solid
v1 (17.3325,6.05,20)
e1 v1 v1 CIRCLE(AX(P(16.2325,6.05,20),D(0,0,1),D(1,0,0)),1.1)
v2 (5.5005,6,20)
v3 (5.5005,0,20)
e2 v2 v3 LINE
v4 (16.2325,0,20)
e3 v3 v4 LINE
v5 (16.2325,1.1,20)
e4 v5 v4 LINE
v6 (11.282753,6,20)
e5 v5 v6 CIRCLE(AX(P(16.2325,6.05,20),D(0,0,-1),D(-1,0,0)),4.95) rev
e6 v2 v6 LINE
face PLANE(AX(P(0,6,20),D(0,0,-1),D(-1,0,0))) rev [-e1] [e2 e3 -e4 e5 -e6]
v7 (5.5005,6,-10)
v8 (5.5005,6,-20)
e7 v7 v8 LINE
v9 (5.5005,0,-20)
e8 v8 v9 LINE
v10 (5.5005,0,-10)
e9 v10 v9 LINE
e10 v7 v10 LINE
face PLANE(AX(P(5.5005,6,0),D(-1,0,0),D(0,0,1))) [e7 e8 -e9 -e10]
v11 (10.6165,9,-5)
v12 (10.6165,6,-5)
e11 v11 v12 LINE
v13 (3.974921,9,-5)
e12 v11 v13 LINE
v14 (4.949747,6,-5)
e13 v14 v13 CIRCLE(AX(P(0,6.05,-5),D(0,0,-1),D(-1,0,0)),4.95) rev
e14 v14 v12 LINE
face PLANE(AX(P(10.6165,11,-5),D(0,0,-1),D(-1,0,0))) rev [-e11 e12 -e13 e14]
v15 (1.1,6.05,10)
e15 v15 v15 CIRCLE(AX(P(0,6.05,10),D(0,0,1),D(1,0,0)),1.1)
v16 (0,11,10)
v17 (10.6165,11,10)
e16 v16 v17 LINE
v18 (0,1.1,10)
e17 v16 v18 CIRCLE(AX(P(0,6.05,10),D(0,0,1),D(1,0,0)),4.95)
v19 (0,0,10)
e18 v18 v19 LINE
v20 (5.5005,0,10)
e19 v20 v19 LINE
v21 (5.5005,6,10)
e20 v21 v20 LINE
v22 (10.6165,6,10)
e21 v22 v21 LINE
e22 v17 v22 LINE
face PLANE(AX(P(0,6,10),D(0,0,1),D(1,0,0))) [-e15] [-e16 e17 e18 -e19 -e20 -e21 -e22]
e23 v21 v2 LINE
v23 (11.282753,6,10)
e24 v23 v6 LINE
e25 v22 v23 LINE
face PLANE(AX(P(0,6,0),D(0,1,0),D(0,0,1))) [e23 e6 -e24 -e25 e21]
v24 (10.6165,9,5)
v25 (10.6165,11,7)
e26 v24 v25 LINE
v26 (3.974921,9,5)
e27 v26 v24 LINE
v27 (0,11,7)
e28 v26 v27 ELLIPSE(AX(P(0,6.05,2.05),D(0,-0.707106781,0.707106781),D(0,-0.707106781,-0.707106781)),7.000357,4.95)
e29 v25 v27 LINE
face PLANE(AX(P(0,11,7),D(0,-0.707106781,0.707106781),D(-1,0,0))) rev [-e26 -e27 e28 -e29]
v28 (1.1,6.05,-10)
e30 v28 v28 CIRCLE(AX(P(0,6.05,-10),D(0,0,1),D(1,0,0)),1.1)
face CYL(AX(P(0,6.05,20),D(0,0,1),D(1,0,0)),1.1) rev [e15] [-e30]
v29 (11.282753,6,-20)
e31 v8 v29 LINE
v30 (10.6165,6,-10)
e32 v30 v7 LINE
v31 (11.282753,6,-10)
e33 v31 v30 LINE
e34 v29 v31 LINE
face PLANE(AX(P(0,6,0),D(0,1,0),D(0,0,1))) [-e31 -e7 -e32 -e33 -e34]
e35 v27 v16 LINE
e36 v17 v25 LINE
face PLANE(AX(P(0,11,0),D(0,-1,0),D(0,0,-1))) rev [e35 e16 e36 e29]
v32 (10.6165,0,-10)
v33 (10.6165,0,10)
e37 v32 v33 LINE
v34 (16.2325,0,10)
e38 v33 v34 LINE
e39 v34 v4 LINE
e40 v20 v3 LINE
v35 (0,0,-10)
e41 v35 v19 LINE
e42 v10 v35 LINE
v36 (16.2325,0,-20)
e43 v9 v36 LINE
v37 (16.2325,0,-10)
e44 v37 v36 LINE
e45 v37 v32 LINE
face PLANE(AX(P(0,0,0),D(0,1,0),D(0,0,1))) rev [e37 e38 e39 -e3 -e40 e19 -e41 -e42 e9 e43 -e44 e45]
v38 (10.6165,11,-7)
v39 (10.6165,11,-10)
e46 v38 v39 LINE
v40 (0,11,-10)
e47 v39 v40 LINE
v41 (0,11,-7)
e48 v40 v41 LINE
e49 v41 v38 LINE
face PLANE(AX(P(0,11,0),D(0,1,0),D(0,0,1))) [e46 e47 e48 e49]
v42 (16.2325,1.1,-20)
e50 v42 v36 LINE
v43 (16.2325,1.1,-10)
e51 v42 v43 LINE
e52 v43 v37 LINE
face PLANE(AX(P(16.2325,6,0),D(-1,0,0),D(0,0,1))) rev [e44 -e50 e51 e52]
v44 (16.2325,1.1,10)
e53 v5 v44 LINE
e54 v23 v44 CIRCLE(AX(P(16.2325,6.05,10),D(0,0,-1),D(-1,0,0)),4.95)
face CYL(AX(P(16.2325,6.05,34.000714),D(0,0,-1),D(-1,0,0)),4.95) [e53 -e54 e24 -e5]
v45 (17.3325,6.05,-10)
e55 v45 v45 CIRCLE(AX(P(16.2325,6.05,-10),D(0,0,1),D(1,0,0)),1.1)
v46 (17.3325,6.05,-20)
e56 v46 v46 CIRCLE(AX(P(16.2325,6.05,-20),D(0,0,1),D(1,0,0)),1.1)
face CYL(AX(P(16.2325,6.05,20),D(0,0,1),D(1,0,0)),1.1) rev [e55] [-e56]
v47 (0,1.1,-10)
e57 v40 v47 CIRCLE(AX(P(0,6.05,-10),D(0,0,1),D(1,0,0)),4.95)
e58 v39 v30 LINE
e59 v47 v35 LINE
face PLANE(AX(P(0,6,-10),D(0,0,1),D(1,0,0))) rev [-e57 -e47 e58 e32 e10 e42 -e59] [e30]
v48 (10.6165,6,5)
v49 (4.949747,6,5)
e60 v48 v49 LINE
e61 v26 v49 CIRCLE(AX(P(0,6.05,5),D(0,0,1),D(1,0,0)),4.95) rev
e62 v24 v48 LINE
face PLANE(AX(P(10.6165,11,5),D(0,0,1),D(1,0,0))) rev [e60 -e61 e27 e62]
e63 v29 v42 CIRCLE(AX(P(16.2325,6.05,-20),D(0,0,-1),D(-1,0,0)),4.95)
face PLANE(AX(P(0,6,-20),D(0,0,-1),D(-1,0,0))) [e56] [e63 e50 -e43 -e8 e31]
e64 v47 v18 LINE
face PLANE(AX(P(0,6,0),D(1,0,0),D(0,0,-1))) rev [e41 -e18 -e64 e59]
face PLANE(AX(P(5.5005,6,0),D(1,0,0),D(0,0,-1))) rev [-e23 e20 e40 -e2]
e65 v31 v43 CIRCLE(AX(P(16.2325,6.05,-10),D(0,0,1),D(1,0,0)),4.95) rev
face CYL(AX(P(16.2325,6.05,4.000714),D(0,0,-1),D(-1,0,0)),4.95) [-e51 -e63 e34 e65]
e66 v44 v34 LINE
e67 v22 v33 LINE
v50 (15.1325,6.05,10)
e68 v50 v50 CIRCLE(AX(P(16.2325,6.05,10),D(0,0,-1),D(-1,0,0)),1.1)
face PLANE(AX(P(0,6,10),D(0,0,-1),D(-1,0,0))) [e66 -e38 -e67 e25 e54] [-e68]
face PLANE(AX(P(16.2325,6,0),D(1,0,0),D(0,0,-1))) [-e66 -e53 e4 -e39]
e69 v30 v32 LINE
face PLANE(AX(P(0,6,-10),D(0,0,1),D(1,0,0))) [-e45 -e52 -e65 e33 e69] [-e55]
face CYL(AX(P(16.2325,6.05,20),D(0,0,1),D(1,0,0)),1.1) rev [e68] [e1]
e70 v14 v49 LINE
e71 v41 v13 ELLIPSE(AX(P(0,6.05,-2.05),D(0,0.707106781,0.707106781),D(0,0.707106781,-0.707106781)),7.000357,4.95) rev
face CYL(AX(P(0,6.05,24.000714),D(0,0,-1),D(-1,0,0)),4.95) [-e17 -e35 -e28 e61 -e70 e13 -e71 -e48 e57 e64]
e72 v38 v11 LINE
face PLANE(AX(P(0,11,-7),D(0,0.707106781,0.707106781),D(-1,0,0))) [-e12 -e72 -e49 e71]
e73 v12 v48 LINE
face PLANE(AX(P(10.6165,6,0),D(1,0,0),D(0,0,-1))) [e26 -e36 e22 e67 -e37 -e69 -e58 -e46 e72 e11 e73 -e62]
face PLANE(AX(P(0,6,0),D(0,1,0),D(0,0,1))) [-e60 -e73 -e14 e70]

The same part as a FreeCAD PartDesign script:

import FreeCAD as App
import Part
import Sketcher
Q = App.Units.Quantity


def edges_at(feature, points):
    """Names of the edges that pass closest to the given points."""
    edges = feature.Shape.Edges
    near = lambda p: min(range(len(edges)), key=lambda i: edges[i].distToShape(Part.Vertex(*p))[0])
    return sorted({f"Edge{near(p) + 1}" for p in points})


def add_polygon(sketch, points):
    """Adds a closed chain of lines whose ends are joined by coincident constraints."""
    first, n = sketch.GeometryCount, len(points)
    for a, b in zip(points, points[1:] + points[:1]):
        sketch.addGeometry(Part.LineSegment(App.Vector(*a, 0), App.Vector(*b, 0)), False)
    for i in range(n):
        sketch.addConstraint(Sketcher.Constraint("Coincident", first + i, 2, first + (i + 1) % n, 1))

doc = App.newDocument("Part")
body = doc.addObject("PartDesign::Body", "Body")

sketch1 = body.newObject("Sketcher::SketchObject", "Sketch")
sketch1.AttachmentSupport = (doc.getObject("XZ_Plane"), [""])
sketch1.MapMode = "FlatFace"
add_polygon(sketch1, [(16.2325, 10), (10.6165, 10), (10.6165, -10), (16.2325, -10), (16.2325, -20), (5.5005, -20), (5.5005, -10), (0, -10), (0, 10), (5.5005, 10), (5.5005, 20), (16.2325, 20)])
sketch1.addConstraint([
    Sketcher.Constraint("Horizontal", 0),
    Sketcher.Constraint("Vertical", 1),
    Sketcher.Constraint("Horizontal", 2),
    Sketcher.Constraint("Vertical", 3),
    Sketcher.Constraint("Horizontal", 4),
    Sketcher.Constraint("Vertical", 5),
    Sketcher.Constraint("Horizontal", 6),
    Sketcher.Constraint("Vertical", 7),
    Sketcher.Constraint("Horizontal", 8),
    Sketcher.Constraint("Vertical", 9),
    Sketcher.Constraint("Horizontal", 10),
    Sketcher.Constraint("Vertical", 11),
    Sketcher.Constraint("Symmetric", 6, 2, 7, 2, -1, 1),
    Sketcher.Constraint("Symmetric", 4, 2, 9, 2, -1),
    Sketcher.Constraint("Symmetric", 2, 2, 11, 2, -1),
    Sketcher.Constraint("Horizontal", 2, 2, 5, 2),
    Sketcher.Constraint("DistanceY", 1, 2, 1, 1, Q("20 mm")),
    Sketcher.Constraint("DistanceY", 3, 2, 3, 1, Q("10 mm")),
    Sketcher.Constraint("DistanceX", 0, 2, 0, 1, Q("5.616 mm")),
    Sketcher.Constraint("DistanceX", 4, 2, 4, 1, Q("10.732 mm")),
    Sketcher.Constraint("DistanceX", 6, 2, 6, 1, Q("5.5005 mm")),
])
pad1 = body.newObject("PartDesign::Pad", "Pad")
pad1.Profile = sketch1
pad1.Length = 6
pad1.Reversed = True

sketch2 = body.newObject("Sketcher::SketchObject", "Sketch001")
sketch2.AttachmentSupport = (doc.getObject("XZ_Plane"), [""])
sketch2.MapMode = "FlatFace"
sketch2.AttachmentOffset = App.Placement(App.Vector(0, 0, -6), App.Rotation())
add_polygon(sketch2, [(0, -10), (0, -5), (10.6165, -5), (10.6165, -10)])
add_polygon(sketch2, [(0, 5), (0, 10), (10.6165, 10), (10.6165, 5)])
sketch2.addConstraint([
    Sketcher.Constraint("Vertical", 0),
    Sketcher.Constraint("Horizontal", 1),
    Sketcher.Constraint("Vertical", 2),
    Sketcher.Constraint("Horizontal", 3),
    Sketcher.Constraint("Vertical", 4),
    Sketcher.Constraint("Horizontal", 5),
    Sketcher.Constraint("Vertical", 6),
    Sketcher.Constraint("Horizontal", 7),
    Sketcher.Constraint("Symmetric", 3, 2, 4, 2, -1, 1),
    Sketcher.Constraint("Symmetric", 1, 2, 6, 2, -1),
    Sketcher.Constraint("PointOnObject", 0, 2, -2),
    Sketcher.Constraint("DistanceY", 0, 1, 0, 2, Q("5 mm")),
    Sketcher.Constraint("DistanceY", 0, 2, -1, 1, Q("5 mm")),
    Sketcher.Constraint("DistanceX", 1, 1, 1, 2, Q("10.6165 mm")),
])
pad2 = body.newObject("PartDesign::Pad", "Pad001")
pad2.Profile = sketch2
pad2.Length = 5
pad2.Reversed = True
doc.recompute()

chamfer = body.newObject("PartDesign::Chamfer", "Chamfer")
chamfer.Base = (pad2, edges_at(pad2, [(5.308, 11, -5), (5.308, 11, 5)]))
chamfer.Size = 2

sketch3 = body.newObject("Sketcher::SketchObject", "Sketch002")
sketch3.AttachmentSupport = (doc.getObject("XY_Plane"), [""])
sketch3.MapMode = "FlatFace"
sketch3.AttachmentOffset = App.Placement(App.Vector(0, 0, -10), App.Rotation())
sketch3.addGeometry(Part.Circle(App.Vector(0, 6.05, 0), App.Vector(0, 0, 1), 4.95), False)
sketch3.addConstraint([
    Sketcher.Constraint("PointOnObject", 0, 3, -2),
    Sketcher.Constraint("Diameter", 0, Q("9.9 mm")),
    Sketcher.Constraint("DistanceY", -1, 1, 0, 3, Q("6.05 mm")),
])
pad3 = body.newObject("PartDesign::Pad", "Pad002")
pad3.Profile = sketch3
pad3.Length = 20

sketch4 = body.newObject("Sketcher::SketchObject", "Sketch003")
sketch4.AttachmentSupport = (doc.getObject("XY_Plane"), [""])
sketch4.MapMode = "FlatFace"
sketch4.AttachmentOffset = App.Placement(App.Vector(0, 0, 10), App.Rotation())
sketch4.addGeometry(Part.Circle(App.Vector(16.2325, 6.05, 0), App.Vector(0, 0, 1), 4.95), False)
sketch4.addConstraint([
    Sketcher.Constraint("Diameter", 0, Q("9.9 mm")),
    Sketcher.Constraint("DistanceY", -1, 1, 0, 3, Q("6.05 mm")),
    Sketcher.Constraint("DistanceX", -1, 1, 0, 3, Q("16.2325 mm")),
])
pad4 = body.newObject("PartDesign::Pad", "Pad003")
pad4.Profile = sketch4
pad4.Length = 10

sketch5 = body.newObject("Sketcher::SketchObject", "Sketch004")
sketch5.AttachmentSupport = (doc.getObject("XY_Plane"), [""])
sketch5.MapMode = "FlatFace"
sketch5.AttachmentOffset = App.Placement(App.Vector(0, 0, -20), App.Rotation())
sketch5.addGeometry(Part.Circle(App.Vector(16.2325, 6.05, 0), App.Vector(0, 0, 1), 4.95), False)
sketch5.addConstraint([
    Sketcher.Constraint("Diameter", 0, Q("9.9 mm")),
    Sketcher.Constraint("DistanceY", -1, 1, 0, 3, Q("6.05 mm")),
    Sketcher.Constraint("DistanceX", -1, 1, 0, 3, Q("16.2325 mm")),
])
pad5 = body.newObject("PartDesign::Pad", "Pad004")
pad5.Profile = sketch5
pad5.Length = 10

sketch6 = body.newObject("Sketcher::SketchObject", "Sketch005")
sketch6.AttachmentSupport = (doc.getObject("XY_Plane"), [""])
sketch6.MapMode = "FlatFace"
sketch6.AttachmentOffset = App.Placement(App.Vector(0, 0, 20), App.Rotation())
sketch6.addGeometry([
    Part.Circle(App.Vector(0, 6.05, 0), App.Vector(0, 0, 1), 1.1),
    Part.Circle(App.Vector(16.2325, 6.05, 0), App.Vector(0, 0, 1), 1.1),
], False)
sketch6.addConstraint([
    Sketcher.Constraint("Equal", 0, 1),
    Sketcher.Constraint("PointOnObject", 0, 3, -2),
    Sketcher.Constraint("Horizontal", 0, 3, 1, 3),
    Sketcher.Constraint("Diameter", 0, Q("2.2 mm")),
    Sketcher.Constraint("DistanceY", -1, 1, 0, 3, Q("6.05 mm")),
    Sketcher.Constraint("DistanceX", -1, 1, 1, 3, Q("16.2325 mm")),
])
doc.recompute()
hole = body.newObject("PartDesign::Hole", "Hole")
hole.Profile = sketch6
hole.ThreadType = "None"
hole.Diameter = 2.2
hole.DepthType = "ThroughAll"

doc.recompute()
